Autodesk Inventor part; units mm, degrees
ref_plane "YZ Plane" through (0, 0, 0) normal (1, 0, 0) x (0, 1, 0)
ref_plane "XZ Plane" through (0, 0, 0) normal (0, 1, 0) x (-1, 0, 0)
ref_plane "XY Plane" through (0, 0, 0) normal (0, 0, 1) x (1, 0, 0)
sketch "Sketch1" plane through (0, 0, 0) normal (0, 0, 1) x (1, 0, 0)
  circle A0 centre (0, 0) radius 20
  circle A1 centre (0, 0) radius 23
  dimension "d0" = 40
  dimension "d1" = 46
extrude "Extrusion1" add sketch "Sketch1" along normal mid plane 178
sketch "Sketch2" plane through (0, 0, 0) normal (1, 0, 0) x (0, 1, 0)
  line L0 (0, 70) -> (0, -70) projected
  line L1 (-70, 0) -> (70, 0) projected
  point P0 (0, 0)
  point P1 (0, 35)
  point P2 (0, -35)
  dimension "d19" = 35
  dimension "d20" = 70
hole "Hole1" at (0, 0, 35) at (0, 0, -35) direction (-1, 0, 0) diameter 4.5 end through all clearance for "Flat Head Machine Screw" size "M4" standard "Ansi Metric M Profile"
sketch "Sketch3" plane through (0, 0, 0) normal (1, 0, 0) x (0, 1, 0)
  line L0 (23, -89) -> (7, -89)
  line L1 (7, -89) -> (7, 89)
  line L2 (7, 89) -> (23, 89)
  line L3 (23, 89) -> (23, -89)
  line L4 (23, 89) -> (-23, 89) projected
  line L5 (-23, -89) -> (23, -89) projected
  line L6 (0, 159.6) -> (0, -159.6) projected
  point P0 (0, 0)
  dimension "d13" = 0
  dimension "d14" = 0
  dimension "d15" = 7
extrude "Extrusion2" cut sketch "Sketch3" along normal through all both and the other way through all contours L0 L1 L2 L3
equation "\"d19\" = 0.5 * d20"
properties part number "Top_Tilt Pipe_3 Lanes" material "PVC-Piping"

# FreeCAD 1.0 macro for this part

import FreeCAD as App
import Part
import Sketcher
from FreeCAD import Vector
Q = App.Units.Quantity

doc = App.newDocument("Part")
body = doc.addObject("PartDesign::Body", "Body")

# Sketch on XY plane
sketch1 = body.newObject("Sketcher::SketchObject", "Sketch")
sketch1.AttachmentSupport = (doc.getObject("XY_Plane"), [""])
sketch1.MapMode = "FlatFace"
sketch1.addGeometry(Part.Circle(Vector(0, 0, 0), Vector(0, 0, 1), 23), False)
sketch1.addGeometry(Part.Circle(Vector(0, 0, 0), Vector(0, 0, 1), 20), False)
sketch1.addConstraint(Sketcher.Constraint("Coincident", 0, 3, -1, 1))
sketch1.addConstraint(Sketcher.Constraint("Coincident", 1, 3, -1, 1))
sketch1.addConstraint(Sketcher.Constraint("Diameter", 0, Q("46 mm")))
sketch1.addConstraint(Sketcher.Constraint("Diameter", 1, Q("40 mm")))
pad1 = body.newObject("PartDesign::Pad", "Pad")
pad1.Profile = sketch1
pad1.Length = 178
pad1.Midplane = True

# Sketch on YZ plane
sketch2 = body.newObject("Sketcher::SketchObject", "Sketch001")
sketch2.AttachmentSupport = (doc.getObject("YZ_Plane"), [""])
sketch2.MapMode = "FlatFace"
sketch2.addGeometry(Part.Circle(Vector(0, 35, 0), Vector(0, 0, 1), 2.2), False)
sketch2.addGeometry(Part.Circle(Vector(0, -35, 0), Vector(0, 0, 1), 2.2), False)
sketch2.addConstraint(Sketcher.Constraint("Equal", 0, 1))
sketch2.addConstraint(Sketcher.Constraint("Symmetric", 0, 3, 1, 3, -1, 1))
sketch2.addConstraint(Sketcher.Constraint("PointOnObject", 0, 3, -2))
sketch2.addConstraint(Sketcher.Constraint("Diameter", 0, Q("4.5 mm")))
sketch2.addConstraint(Sketcher.Constraint("DistanceY", -1, 1, 0, 3, Q("35 mm")))
doc.recompute()
hole = body.newObject("PartDesign::Hole", "Hole")
hole.Profile = sketch2
hole.ThreadType = "None"
hole.Diameter = 4.5
hole.DepthType = "ThroughAll"

# Sketch on YZ plane
sketch3 = body.newObject("Sketcher::SketchObject", "Sketch002")
sketch3.AttachmentSupport = (doc.getObject("YZ_Plane"), [""])
sketch3.MapMode = "FlatFace"
sketch3.addGeometry(Part.LineSegment(Vector(7, -89, 0), Vector(23, -89, 0)), False)
sketch3.addGeometry(Part.LineSegment(Vector(23, -89, 0), Vector(23, 89, 0)), False)
sketch3.addGeometry(Part.LineSegment(Vector(23, 89, 0), Vector(7, 89, 0)), False)
sketch3.addGeometry(Part.LineSegment(Vector(7, 89, 0), Vector(7, -89, 0)), False)
sketch3.addConstraint(Sketcher.Constraint("Coincident", 0, 2, 1, 1))
sketch3.addConstraint(Sketcher.Constraint("Coincident", 1, 2, 2, 1))
sketch3.addConstraint(Sketcher.Constraint("Coincident", 2, 2, 3, 1))
sketch3.addConstraint(Sketcher.Constraint("Coincident", 3, 2, 0, 1))
sketch3.addConstraint(Sketcher.Constraint("Horizontal", 0))
sketch3.addConstraint(Sketcher.Constraint("Vertical", 1))
sketch3.addConstraint(Sketcher.Constraint("Horizontal", 2))
sketch3.addConstraint(Sketcher.Constraint("Vertical", 3))
sketch3.addConstraint(Sketcher.Constraint("DistanceX", -1, 1, 2, 2, Q("7 mm")))
sketch3.addConstraint(Sketcher.Constraint("DistanceX", 0, 1, 0, 2, Q("16 mm")))
sketch3.addConstraint(Sketcher.Constraint("DistanceY", 1, 1, 1, 2, Q("178 mm")))
sketch3.addConstraint(Sketcher.Constraint("DistanceY", 0, 2, -1, 1, Q("89 mm")))
pocket1 = body.newObject("PartDesign::Pocket", "Pocket")
pocket1.Profile = sketch3
pocket1.Type = "ThroughAll"
pocket1.Midplane = True

doc.recompute()
